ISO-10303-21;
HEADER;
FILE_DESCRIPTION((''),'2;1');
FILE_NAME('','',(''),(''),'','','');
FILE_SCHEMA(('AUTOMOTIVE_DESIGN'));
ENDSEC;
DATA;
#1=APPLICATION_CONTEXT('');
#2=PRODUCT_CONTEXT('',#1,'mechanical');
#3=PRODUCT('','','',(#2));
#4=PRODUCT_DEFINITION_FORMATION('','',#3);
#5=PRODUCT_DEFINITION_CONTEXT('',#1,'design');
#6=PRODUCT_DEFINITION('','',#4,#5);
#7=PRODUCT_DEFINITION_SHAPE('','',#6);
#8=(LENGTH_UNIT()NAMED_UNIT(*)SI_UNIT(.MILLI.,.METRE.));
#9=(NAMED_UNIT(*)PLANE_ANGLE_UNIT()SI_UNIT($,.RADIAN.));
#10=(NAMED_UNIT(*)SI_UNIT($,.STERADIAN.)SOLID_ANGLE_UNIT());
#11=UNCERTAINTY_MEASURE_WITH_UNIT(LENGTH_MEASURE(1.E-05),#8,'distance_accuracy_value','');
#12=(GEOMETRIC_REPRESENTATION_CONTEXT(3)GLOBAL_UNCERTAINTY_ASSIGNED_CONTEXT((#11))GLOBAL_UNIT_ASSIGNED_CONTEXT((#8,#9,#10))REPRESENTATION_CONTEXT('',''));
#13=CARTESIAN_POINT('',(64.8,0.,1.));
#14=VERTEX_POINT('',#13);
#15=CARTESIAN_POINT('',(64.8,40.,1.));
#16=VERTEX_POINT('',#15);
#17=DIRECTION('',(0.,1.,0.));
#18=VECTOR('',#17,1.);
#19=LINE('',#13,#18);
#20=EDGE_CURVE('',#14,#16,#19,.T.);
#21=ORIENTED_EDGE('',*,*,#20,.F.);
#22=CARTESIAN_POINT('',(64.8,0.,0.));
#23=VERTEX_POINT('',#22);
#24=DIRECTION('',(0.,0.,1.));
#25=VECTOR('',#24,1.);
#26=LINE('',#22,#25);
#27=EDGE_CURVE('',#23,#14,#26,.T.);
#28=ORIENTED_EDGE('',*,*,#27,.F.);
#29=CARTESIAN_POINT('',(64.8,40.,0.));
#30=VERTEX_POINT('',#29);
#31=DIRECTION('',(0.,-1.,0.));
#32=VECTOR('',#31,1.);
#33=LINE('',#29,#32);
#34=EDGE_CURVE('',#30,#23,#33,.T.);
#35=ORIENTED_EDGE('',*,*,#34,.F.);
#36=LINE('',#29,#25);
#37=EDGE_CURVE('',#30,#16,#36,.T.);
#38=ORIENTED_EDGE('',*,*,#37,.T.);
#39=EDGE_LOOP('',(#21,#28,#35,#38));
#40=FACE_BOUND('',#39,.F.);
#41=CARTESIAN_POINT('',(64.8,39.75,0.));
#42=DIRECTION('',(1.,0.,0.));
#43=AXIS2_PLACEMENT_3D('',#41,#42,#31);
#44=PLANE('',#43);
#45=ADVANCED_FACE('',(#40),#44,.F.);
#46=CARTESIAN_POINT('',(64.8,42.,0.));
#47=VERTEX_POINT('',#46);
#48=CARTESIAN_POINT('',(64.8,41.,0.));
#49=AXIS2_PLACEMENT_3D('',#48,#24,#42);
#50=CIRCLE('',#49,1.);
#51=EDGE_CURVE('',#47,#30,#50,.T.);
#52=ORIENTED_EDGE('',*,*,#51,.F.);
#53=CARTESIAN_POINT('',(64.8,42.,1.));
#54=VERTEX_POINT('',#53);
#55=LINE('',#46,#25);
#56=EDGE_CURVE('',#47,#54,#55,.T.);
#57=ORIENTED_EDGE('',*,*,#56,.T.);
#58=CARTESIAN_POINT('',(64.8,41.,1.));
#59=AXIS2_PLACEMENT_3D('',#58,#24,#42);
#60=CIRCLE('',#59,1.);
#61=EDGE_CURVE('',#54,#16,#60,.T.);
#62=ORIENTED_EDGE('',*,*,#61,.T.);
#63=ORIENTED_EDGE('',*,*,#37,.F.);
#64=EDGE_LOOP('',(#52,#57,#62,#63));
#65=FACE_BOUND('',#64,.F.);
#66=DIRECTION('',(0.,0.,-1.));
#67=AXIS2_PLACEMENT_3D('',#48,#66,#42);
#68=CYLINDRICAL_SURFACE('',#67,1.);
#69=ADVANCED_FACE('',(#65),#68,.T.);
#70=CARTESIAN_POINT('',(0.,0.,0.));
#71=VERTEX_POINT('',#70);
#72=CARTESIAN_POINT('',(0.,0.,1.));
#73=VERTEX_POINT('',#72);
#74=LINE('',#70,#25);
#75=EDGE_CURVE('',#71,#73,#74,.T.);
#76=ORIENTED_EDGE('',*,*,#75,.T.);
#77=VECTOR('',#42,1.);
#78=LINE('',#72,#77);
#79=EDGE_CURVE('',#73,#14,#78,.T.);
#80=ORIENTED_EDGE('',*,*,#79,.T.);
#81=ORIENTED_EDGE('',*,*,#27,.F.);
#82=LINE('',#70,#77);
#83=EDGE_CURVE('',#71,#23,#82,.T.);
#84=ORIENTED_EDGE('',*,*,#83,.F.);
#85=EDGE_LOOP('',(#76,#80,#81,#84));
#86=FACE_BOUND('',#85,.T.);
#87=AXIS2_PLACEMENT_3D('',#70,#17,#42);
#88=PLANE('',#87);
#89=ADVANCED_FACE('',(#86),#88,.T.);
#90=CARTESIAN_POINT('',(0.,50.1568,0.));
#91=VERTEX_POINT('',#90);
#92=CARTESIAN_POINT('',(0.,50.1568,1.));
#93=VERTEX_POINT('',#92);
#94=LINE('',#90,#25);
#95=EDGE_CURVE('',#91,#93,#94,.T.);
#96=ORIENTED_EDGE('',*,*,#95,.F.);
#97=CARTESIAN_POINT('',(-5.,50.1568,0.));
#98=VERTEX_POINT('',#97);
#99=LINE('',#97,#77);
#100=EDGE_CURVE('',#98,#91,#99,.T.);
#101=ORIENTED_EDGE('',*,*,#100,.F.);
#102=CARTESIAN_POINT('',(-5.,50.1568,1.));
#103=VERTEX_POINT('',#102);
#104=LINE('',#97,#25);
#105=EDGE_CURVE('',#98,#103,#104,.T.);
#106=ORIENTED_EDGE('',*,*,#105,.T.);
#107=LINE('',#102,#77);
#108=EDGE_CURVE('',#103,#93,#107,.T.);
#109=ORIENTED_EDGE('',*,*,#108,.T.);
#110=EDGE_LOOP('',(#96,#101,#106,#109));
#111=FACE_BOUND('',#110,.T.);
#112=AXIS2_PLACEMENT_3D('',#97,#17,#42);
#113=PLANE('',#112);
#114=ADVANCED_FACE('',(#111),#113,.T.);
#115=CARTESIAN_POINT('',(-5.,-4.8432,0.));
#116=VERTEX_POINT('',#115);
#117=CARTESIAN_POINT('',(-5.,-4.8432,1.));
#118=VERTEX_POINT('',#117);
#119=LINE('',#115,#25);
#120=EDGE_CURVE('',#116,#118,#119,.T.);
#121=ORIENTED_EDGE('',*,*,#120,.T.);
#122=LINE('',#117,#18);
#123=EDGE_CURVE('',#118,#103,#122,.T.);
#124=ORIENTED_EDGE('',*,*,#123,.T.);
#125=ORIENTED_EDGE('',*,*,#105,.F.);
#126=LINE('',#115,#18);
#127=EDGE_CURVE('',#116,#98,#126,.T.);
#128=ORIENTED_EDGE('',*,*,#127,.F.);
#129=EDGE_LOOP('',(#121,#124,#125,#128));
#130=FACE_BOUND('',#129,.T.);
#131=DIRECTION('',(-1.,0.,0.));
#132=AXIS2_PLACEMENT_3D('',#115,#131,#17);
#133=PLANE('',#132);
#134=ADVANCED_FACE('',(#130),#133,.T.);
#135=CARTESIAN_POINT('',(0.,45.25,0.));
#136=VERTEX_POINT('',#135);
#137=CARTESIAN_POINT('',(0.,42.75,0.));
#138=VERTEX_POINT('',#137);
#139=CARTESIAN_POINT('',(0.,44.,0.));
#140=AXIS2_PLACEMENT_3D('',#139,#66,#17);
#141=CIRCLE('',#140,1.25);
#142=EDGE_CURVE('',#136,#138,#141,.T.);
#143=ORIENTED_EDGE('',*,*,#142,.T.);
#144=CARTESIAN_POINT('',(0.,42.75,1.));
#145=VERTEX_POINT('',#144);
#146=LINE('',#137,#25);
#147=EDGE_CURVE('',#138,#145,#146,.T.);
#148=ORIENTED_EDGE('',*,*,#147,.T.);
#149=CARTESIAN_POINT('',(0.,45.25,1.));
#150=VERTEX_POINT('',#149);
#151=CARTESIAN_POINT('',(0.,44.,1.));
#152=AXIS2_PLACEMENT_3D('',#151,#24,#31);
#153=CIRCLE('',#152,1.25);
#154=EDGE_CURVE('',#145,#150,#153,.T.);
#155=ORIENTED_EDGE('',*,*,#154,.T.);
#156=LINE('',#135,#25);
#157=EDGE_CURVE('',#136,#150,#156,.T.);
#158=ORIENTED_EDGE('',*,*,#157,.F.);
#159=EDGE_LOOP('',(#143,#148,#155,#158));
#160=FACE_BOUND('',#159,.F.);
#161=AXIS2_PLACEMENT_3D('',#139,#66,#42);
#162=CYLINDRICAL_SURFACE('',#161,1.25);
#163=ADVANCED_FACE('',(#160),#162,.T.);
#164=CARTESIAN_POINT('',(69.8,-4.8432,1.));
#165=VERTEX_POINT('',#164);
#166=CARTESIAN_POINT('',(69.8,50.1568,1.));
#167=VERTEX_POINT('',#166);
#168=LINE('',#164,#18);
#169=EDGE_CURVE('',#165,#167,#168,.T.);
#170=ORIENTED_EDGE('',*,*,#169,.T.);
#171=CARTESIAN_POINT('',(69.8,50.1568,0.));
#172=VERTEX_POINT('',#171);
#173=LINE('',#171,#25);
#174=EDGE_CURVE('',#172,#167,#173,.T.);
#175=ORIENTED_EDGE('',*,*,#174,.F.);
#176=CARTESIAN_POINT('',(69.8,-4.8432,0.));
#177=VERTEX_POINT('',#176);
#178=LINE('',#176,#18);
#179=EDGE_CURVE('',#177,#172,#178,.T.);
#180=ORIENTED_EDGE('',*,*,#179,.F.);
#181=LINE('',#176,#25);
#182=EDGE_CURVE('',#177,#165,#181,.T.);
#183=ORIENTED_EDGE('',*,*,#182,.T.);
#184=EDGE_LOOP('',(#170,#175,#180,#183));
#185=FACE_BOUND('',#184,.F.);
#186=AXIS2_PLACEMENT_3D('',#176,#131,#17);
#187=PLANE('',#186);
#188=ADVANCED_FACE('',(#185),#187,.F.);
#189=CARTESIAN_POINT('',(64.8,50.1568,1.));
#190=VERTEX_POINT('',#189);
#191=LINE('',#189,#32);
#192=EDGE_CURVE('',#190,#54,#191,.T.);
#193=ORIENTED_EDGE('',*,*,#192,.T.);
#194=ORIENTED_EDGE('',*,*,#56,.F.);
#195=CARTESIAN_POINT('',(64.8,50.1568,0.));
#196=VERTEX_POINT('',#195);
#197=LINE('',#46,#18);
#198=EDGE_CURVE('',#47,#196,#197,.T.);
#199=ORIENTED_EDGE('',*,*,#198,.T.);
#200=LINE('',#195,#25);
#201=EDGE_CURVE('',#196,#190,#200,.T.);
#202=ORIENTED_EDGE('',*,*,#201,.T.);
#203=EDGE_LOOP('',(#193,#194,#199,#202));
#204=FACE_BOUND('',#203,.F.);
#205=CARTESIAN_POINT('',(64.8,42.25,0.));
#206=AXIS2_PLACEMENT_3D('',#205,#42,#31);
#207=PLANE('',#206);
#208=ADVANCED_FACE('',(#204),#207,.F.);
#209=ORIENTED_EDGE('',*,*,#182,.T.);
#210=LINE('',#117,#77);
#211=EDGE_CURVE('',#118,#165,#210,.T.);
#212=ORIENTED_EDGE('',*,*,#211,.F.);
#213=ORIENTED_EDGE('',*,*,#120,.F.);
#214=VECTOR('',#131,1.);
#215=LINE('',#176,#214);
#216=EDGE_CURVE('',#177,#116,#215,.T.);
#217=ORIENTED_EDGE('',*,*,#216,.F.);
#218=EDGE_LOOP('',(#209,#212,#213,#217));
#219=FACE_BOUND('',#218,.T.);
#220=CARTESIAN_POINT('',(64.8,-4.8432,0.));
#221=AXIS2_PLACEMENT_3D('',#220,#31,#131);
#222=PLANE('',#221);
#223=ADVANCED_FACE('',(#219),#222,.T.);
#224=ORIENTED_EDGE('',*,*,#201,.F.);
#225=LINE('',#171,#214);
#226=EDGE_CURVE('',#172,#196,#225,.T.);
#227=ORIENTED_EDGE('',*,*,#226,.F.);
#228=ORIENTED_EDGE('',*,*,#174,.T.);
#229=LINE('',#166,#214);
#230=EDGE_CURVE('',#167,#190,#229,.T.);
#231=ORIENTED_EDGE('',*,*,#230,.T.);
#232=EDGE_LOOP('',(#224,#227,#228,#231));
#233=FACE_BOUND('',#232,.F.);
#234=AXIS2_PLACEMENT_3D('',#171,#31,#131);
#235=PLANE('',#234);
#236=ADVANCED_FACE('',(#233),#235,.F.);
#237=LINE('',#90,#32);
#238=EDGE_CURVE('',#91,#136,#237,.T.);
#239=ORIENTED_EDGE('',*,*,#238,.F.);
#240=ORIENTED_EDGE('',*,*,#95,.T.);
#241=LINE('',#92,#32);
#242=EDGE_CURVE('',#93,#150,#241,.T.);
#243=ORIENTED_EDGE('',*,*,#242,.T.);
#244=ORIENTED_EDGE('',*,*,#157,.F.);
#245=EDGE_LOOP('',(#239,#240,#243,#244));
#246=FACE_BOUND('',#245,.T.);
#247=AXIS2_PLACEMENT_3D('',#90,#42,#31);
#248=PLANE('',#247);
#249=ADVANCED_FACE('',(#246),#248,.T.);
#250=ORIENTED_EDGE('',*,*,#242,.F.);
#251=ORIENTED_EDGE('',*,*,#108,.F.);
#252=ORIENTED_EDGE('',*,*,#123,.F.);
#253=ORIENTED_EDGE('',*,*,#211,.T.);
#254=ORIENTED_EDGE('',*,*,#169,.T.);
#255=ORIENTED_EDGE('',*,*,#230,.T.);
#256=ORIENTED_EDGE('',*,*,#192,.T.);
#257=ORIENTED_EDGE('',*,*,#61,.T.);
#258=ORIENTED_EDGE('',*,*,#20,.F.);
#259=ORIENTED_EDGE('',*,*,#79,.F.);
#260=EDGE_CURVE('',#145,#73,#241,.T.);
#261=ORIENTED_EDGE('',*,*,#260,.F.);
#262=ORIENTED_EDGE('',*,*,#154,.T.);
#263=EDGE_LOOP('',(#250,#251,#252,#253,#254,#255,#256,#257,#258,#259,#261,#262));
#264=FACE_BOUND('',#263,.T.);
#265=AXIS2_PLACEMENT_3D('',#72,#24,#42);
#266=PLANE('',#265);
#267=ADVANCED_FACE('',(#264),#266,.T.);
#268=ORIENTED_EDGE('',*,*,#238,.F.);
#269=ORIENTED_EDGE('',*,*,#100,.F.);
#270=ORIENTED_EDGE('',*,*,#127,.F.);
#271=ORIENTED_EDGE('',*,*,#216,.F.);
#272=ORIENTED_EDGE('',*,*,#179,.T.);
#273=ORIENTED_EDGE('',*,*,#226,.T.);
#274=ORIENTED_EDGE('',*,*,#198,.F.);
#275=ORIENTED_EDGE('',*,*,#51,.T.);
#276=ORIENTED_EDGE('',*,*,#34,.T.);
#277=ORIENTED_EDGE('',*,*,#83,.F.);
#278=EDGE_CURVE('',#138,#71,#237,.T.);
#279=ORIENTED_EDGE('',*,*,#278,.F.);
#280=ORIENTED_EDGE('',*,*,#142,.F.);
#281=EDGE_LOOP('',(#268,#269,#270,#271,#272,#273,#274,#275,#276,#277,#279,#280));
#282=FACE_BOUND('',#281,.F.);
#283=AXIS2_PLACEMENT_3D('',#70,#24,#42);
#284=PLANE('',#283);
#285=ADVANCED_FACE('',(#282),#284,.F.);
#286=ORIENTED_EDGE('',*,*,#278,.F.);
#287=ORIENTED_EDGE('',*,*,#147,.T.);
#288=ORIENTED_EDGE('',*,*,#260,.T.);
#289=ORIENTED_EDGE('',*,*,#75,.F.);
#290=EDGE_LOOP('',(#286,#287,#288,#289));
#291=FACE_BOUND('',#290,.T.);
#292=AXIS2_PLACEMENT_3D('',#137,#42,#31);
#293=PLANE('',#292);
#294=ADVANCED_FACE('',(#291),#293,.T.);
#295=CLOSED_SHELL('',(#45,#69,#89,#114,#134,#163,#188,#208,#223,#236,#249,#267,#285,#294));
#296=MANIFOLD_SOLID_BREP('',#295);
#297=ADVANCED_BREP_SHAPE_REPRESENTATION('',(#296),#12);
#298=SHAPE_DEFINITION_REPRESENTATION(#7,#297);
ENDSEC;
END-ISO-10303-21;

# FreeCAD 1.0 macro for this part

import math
import FreeCAD as App
import Part
import Sketcher
from FreeCAD import Vector

doc = App.newDocument("Part")
params = doc.addObject("Spreadsheet::Sheet", "Params")
for row, (alias, value) in enumerate([
    ("sketch1_radius", "1 mm"),
    ("sketch1_width", "5 mm"),
    ("sketch1_height", "55 mm"),
    ("sketch1_radius2", "1.25 mm"),
    ("sketch1_width2", "64.8 mm"),
    ("pad1_length", "1 mm"),
], start=1):
    params.set(f"A{row}", alias)
    params.set(f"B{row}", "=" + value)
    params.setAlias(f"B{row}", alias)

body = doc.addObject("PartDesign::Body", "Body")

# Sketch on XY plane
sketch1 = body.newObject("Sketcher::SketchObject", "Sketch")
sketch1.AttachmentSupport = (doc.getObject("XY_Plane"), [""])
sketch1.MapMode = "FlatFace"
sketch1.addGeometry([
    Part.LineSegment(Vector(64.8, 0, 0), Vector(0, 0, 0)),  # 0
    Part.LineSegment(Vector(0, 0, 0), Vector(0, 42.75, 0)),  # 1
    Part.ArcOfCircle(Part.Circle(Vector(0, 44, 0), Vector(0, 0, 1), 1.25), math.radians(-90), math.radians(90)),  # 2
    Part.LineSegment(Vector(0, 45.25, 0), Vector(0, 50.1568, 0)),  # 3
    Part.LineSegment(Vector(0, 50.1568, 0), Vector(-5, 50.1568, 0)),  # 4
    Part.LineSegment(Vector(-5, 50.1568, 0), Vector(-5, -4.8432, 0)),  # 5
    Part.LineSegment(Vector(-5, -4.8432, 0), Vector(69.8, -4.8432, 0)),  # 6
    Part.LineSegment(Vector(69.8, -4.8432, 0), Vector(69.8, 50.1568, 0)),  # 7
    Part.LineSegment(Vector(69.8, 50.1568, 0), Vector(64.8, 50.1568, 0)),  # 8
    Part.LineSegment(Vector(64.8, 50.1568, 0), Vector(64.8, 42, 0)),  # 9
    Part.ArcOfCircle(Part.Circle(Vector(64.8, 41, 0), Vector(0, 0, 1), 1), math.radians(90), math.radians(270)),  # 10
    Part.LineSegment(Vector(64.8, 40, 0), Vector(64.8, 0, 0)),  # 11
], False)
sketch1.addConstraint([
    Sketcher.Constraint("Coincident", 0, 2, 1, 1),
    Sketcher.Constraint("Coincident", 1, 2, 2, 1),
    Sketcher.Constraint("Coincident", 2, 2, 3, 1),
    Sketcher.Constraint("Coincident", 3, 2, 4, 1),
    Sketcher.Constraint("Coincident", 4, 2, 5, 1),
    Sketcher.Constraint("Coincident", 5, 2, 6, 1),
    Sketcher.Constraint("Coincident", 6, 2, 7, 1),
    Sketcher.Constraint("Coincident", 7, 2, 8, 1),
    Sketcher.Constraint("Coincident", 8, 2, 9, 1),
    Sketcher.Constraint("Coincident", 9, 2, 10, 1),
    Sketcher.Constraint("Coincident", 10, 2, 11, 1),
    Sketcher.Constraint("Coincident", 11, 2, 0, 1),
    Sketcher.Constraint("Horizontal", 0),
    Sketcher.Constraint("Vertical", 1),
    Sketcher.Constraint("Vertical", 3),
    Sketcher.Constraint("Horizontal", 4),
    Sketcher.Constraint("Vertical", 5),
    Sketcher.Constraint("Horizontal", 6),
    Sketcher.Constraint("Vertical", 7),
    Sketcher.Constraint("Horizontal", 8),
    Sketcher.Constraint("Vertical", 9),
    Sketcher.Constraint("Vertical", 11),
    Sketcher.Constraint("Coincident", 0, 2, -1, 1),
    Sketcher.Constraint("PointOnObject", 2, 3, -2),
    Sketcher.Constraint("PointOnObject", 2, 2, -2),
    Sketcher.Constraint("Horizontal", 4, 2, 7, 2),
    Sketcher.Constraint("Vertical", 10, 3, 8, 2),
    Sketcher.Constraint("Vertical", 9, 2, 10, 2),
    Sketcher.Constraint("Equal", 4, 8),
    Sketcher.Constraint("Radius", 10, 1.0),
    Sketcher.Constraint("DistanceX", 4, 2, 4, 1, 5.0),
    Sketcher.Constraint("DistanceY", 5, 2, 5, 1, 55.0),
    Sketcher.Constraint("Radius", 2, 1.25),
    Sketcher.Constraint("DistanceX", 0, 2, 0, 1, 64.8),
    Sketcher.Constraint("DistanceY", -1, 1, 2, 3, 44.0),
    Sketcher.Constraint("DistanceY", -1, 1, 10, 3, 41.0),
    Sketcher.Constraint("DistanceY", 3, 1, 3, 2, 4.9068),
])
sketch1.setExpression("Constraints[29]", "Params.sketch1_radius")
sketch1.setExpression("Constraints[30]", "Params.sketch1_width")
sketch1.setExpression("Constraints[31]", "Params.sketch1_height")
sketch1.setExpression("Constraints[32]", "Params.sketch1_radius2")
sketch1.setExpression("Constraints[33]", "Params.sketch1_width2")
pad1 = body.newObject("PartDesign::Pad", "Pad")
pad1.Profile = sketch1
pad1.setExpression("Length", "Params.pad1_length")

doc.recompute()
